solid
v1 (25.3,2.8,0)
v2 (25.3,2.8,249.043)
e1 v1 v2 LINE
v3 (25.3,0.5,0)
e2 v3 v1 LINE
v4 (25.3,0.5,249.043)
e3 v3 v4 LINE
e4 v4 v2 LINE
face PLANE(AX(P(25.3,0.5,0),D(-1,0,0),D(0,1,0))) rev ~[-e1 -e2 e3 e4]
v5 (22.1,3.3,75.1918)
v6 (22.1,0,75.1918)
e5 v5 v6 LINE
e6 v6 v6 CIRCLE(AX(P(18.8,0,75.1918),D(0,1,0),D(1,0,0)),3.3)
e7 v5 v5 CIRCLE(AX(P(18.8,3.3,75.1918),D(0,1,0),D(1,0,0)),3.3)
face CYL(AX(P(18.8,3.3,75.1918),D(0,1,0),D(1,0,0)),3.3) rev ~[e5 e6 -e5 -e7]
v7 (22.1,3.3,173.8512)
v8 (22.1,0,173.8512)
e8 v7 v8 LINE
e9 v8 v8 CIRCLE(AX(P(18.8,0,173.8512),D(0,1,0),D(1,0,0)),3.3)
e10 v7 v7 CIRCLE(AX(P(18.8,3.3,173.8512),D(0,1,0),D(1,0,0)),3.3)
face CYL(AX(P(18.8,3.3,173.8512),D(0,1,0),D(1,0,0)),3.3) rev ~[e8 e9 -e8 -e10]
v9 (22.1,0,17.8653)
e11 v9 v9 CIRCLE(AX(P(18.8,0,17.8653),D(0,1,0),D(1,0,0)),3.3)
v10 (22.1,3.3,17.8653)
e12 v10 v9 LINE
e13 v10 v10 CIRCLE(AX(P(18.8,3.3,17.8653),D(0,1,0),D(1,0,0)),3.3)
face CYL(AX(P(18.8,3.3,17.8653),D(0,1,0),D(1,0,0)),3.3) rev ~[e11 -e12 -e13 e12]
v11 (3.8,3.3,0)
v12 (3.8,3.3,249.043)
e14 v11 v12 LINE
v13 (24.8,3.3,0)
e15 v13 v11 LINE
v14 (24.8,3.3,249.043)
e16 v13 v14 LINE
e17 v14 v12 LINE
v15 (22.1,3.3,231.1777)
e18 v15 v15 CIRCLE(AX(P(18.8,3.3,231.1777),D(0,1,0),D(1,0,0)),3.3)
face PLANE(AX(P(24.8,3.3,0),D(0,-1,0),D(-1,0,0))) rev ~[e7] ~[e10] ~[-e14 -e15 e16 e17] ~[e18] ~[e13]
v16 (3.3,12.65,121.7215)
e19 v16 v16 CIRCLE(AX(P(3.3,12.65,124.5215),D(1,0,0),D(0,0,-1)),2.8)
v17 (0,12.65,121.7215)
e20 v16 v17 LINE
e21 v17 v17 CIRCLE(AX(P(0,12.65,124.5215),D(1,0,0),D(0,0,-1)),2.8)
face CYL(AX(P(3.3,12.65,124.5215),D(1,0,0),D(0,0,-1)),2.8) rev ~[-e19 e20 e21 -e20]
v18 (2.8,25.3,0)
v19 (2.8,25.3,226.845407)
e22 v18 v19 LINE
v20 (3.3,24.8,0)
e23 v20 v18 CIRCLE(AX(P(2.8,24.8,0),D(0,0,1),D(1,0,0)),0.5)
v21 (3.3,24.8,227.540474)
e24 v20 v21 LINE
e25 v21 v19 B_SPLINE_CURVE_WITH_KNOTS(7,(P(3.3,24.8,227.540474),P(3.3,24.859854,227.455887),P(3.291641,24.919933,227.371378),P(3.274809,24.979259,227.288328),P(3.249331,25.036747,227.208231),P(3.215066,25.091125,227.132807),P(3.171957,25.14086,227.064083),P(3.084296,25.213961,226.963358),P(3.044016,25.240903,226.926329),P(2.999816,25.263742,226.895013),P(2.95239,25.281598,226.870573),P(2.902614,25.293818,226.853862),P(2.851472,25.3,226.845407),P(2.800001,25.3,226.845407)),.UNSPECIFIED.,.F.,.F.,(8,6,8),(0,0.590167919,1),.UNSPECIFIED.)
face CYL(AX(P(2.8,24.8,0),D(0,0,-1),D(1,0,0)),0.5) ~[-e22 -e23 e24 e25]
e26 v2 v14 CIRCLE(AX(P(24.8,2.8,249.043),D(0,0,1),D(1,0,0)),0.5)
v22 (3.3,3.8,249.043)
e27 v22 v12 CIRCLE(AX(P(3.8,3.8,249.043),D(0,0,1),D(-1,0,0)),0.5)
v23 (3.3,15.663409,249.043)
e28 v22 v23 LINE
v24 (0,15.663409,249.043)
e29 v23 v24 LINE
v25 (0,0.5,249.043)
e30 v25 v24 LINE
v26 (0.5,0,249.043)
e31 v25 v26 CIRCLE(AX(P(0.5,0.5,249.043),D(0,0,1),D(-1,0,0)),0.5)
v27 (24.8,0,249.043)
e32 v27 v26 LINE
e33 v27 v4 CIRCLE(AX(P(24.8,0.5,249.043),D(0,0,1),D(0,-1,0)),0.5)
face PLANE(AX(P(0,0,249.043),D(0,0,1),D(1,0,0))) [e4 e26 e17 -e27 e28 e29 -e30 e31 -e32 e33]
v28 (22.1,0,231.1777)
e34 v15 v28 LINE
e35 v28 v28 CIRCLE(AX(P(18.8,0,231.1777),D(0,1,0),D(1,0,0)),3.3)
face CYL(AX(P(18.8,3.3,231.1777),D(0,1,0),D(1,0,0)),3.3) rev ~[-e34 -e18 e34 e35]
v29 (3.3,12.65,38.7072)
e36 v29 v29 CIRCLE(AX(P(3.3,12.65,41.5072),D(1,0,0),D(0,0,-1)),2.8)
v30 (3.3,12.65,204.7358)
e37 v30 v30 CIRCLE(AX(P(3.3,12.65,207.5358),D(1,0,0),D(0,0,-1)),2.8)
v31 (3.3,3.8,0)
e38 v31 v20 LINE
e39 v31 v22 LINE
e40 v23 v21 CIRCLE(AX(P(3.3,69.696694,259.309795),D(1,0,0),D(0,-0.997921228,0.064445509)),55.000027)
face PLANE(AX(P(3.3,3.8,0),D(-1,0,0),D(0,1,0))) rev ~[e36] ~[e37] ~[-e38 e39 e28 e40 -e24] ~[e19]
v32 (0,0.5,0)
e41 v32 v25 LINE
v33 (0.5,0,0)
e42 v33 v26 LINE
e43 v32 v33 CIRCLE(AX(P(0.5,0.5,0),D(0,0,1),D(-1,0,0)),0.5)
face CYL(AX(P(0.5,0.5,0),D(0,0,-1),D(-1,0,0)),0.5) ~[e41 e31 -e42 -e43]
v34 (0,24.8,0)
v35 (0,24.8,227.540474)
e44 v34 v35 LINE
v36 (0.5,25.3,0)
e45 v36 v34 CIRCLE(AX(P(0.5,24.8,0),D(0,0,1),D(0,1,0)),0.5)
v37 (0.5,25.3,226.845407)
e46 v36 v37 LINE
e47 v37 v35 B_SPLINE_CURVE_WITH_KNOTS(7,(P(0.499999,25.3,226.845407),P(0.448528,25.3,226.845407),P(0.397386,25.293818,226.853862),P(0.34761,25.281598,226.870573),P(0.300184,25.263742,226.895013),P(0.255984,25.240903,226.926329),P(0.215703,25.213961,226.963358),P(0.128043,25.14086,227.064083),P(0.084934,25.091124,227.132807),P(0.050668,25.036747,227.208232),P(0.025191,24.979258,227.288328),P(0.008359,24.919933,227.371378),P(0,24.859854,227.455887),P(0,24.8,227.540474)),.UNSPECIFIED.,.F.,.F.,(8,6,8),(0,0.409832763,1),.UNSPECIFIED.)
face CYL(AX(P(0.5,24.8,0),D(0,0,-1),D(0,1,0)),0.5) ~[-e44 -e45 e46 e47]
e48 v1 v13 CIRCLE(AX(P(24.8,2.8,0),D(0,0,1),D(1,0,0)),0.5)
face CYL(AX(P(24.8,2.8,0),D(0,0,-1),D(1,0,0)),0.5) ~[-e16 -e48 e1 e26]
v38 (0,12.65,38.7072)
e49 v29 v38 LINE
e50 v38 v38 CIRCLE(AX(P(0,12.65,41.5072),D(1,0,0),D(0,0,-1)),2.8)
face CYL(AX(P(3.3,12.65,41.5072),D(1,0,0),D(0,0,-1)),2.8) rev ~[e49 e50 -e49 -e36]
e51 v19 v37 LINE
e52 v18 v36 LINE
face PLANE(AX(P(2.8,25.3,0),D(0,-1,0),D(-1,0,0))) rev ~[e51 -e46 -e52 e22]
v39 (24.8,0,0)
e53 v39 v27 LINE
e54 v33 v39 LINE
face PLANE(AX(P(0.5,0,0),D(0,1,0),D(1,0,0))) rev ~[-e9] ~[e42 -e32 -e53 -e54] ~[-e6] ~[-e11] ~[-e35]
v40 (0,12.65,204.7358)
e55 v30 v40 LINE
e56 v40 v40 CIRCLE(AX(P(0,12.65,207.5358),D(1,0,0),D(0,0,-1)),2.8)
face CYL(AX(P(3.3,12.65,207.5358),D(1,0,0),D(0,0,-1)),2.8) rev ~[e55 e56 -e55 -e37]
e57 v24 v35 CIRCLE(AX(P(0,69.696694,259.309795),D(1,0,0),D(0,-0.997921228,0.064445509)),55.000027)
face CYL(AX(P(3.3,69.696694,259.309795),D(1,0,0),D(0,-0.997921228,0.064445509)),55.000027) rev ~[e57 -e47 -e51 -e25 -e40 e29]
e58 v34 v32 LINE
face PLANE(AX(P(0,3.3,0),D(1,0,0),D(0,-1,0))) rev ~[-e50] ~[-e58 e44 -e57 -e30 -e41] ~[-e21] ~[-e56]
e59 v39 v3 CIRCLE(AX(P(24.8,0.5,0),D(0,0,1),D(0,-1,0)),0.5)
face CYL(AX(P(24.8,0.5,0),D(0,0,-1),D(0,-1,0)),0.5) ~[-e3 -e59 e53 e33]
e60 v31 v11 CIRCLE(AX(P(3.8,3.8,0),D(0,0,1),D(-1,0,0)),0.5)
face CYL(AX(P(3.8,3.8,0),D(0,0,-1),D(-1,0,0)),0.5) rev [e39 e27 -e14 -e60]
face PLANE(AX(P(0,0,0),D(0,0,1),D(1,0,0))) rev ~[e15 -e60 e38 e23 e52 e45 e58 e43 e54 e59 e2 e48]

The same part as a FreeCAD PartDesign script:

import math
import FreeCAD as App
import Part
import Sketcher

doc = App.newDocument("Part")
params = doc.addObject("Spreadsheet::Sheet", "Params")
for row, (alias, value) in enumerate([
    ("sketch1_radius", "0.5 mm"),
    ("pad1_length", "249.043 mm"),
    ("sketch2_diameter", "6.6 mm"),
    ("sketch3_diameter", "5.6 mm"),
    ("sketch3_radius", "55 mm"),
    ("pocket2_length", "10 mm"),
], start=1):
    params.set(f"A{row}", alias)
    params.set(f"B{row}", "=" + value)
    params.setAlias(f"B{row}", alias)

body = doc.addObject("PartDesign::Body", "Body")

sketch1 = doc.addObject("Sketcher::SketchObject", "Sketch")
body.addObject(sketch1)
sketch1.AttachmentSupport = (doc.XY_Plane, [""])
sketch1.MapMode = "FlatFace"
sketch1.addGeometry([
    Part.ArcOfCircle(Part.Circle(App.Vector(0.5, 0.5, 0), App.Vector(0, 0, 1), 0.5), math.radians(180), math.radians(270)),
    Part.LineSegment(App.Vector(0.5, 0, 0), App.Vector(24.8, 0, 0)),
    Part.ArcOfCircle(Part.Circle(App.Vector(24.8, 0.5, 0), App.Vector(0, 0, 1), 0.5), math.radians(-90), math.radians(0)),
    Part.LineSegment(App.Vector(25.3, 0.5, 0), App.Vector(25.3, 2.8, 0)),
    Part.ArcOfCircle(Part.Circle(App.Vector(24.8, 2.8, 0), App.Vector(0, 0, 1), 0.5), math.radians(0), math.radians(90)),
    Part.LineSegment(App.Vector(24.8, 3.3, 0), App.Vector(3.8, 3.3, 0)),
    Part.ArcOfCircle(Part.Circle(App.Vector(3.8, 3.8, 0), App.Vector(0, 0, 1), 0.5), math.radians(180), math.radians(270)),
    Part.LineSegment(App.Vector(3.3, 3.8, 0), App.Vector(3.3, 24.8, 0)),
    Part.ArcOfCircle(Part.Circle(App.Vector(2.8, 24.8, 0), App.Vector(0, 0, 1), 0.5), math.radians(0), math.radians(90)),
    Part.LineSegment(App.Vector(2.8, 25.3, 0), App.Vector(0.5, 25.3, 0)),
    Part.ArcOfCircle(Part.Circle(App.Vector(0.5, 24.8, 0), App.Vector(0, 0, 1), 0.5), math.radians(90), math.radians(180)),
    Part.LineSegment(App.Vector(0, 24.8, 0), App.Vector(0, 0.5, 0)),
], False)
sketch1.addConstraint([
    Sketcher.Constraint("Tangent", 0, 2, 1, 1),
    Sketcher.Constraint("Tangent", 1, 2, 2, 1),
    Sketcher.Constraint("Tangent", 2, 2, 3, 1),
    Sketcher.Constraint("Tangent", 3, 2, 4, 1),
    Sketcher.Constraint("Tangent", 4, 2, 5, 1),
    Sketcher.Constraint("Tangent", 5, 2, 6, 2),
    Sketcher.Constraint("Tangent", 6, 1, 7, 1),
    Sketcher.Constraint("Tangent", 7, 2, 8, 1),
    Sketcher.Constraint("Tangent", 8, 2, 9, 1),
    Sketcher.Constraint("Tangent", 9, 2, 10, 1),
    Sketcher.Constraint("Tangent", 10, 2, 11, 1),
    Sketcher.Constraint("Tangent", 11, 2, 0, 1),
    Sketcher.Constraint("Horizontal", 1),
    Sketcher.Constraint("Vertical", 3),
    Sketcher.Constraint("Horizontal", 5),
    Sketcher.Constraint("Vertical", 7),
    Sketcher.Constraint("Horizontal", 9),
    Sketcher.Constraint("Vertical", 11),
    Sketcher.Constraint("Equal", 0, 2),
    Sketcher.Constraint("Equal", 2, 4),
    Sketcher.Constraint("Equal", 4, 6),
    Sketcher.Constraint("Equal", 6, 8),
    Sketcher.Constraint("Equal", 8, 10),
    Sketcher.Constraint("PointOnObject", 0, 2, -1),
    Sketcher.Constraint("PointOnObject", 10, 2, -2),
    Sketcher.Constraint("Equal", 9, 3),
    Sketcher.Constraint("Equal", 5, 7),
    Sketcher.Constraint("Radius", 0, 0.5),
    Sketcher.Constraint("DistanceX", -1, 1, 2, 2, 25.3),
    Sketcher.Constraint("DistanceY", -1, 1, 4, 2, 3.3),
])
sketch1.setExpression("Constraints[27]", "Params.sketch1_radius")
pad1 = doc.addObject("PartDesign::Pad", "Pad")
body.addObject(pad1)
pad1.Profile = sketch1
pad1.setExpression("Length", "Params.pad1_length")

sketch2 = doc.addObject("Sketcher::SketchObject", "Sketch001")
body.addObject(sketch2)
sketch2.AttachmentSupport = (doc.XZ_Plane, [""])
sketch2.MapMode = "FlatFace"
sketch2.AttachmentOffset = App.Placement(App.Vector(0, 0, -3.3), App.Rotation())
sketch2.addGeometry([
    Part.Circle(App.Vector(18.8, 231.1777, 0), App.Vector(0, 0, 1), 3.3),
    Part.Circle(App.Vector(18.8, 17.8653, 0), App.Vector(0, 0, 1), 3.3),
    Part.Circle(App.Vector(18.8, 75.1918, 0), App.Vector(0, 0, 1), 3.3),
    Part.Circle(App.Vector(18.8, 173.8512, 0), App.Vector(0, 0, 1), 3.3),
], False)
sketch2.addConstraint([
    Sketcher.Constraint("Equal", 0, 1),
    Sketcher.Constraint("Equal", 1, 2),
    Sketcher.Constraint("Equal", 2, 3),
    Sketcher.Constraint("Vertical", 0, 3, 1, 3),
    Sketcher.Constraint("Vertical", 1, 3, 2, 3),
    Sketcher.Constraint("Vertical", 2, 3, 3, 3),
    Sketcher.Constraint("Diameter", 0, 6.6),
    Sketcher.Constraint("DistanceX", -1, 1, 0, 3, 18.8),
    Sketcher.Constraint("DistanceY", 1, 3, 0, 3, 213.3124),
    Sketcher.Constraint("DistanceY", 2, 3, 0, 3, 155.986),
    Sketcher.Constraint("DistanceY", 1, 3, 3, 3, 155.986),
    Sketcher.Constraint("DistanceY", -1, 1, 0, 3, 231.1777),
])
sketch2.setExpression("Constraints[6]", "Params.sketch2_diameter")
pocket1 = doc.addObject("PartDesign::Pocket", "Pocket")
body.addObject(pocket1)
pocket1.Profile = sketch2
pocket1.Type = "ThroughAll"
pocket1.Reversed = True

sketch3 = doc.addObject("Sketcher::SketchObject", "Sketch002")
body.addObject(sketch3)
sketch3.AttachmentSupport = (doc.YZ_Plane, [""])
sketch3.MapMode = "FlatFace"
sketch3.AttachmentOffset = App.Placement(App.Vector(0, 0, 3.3), App.Rotation())
sketch3.addGeometry([
    Part.Circle(App.Vector(12.65, 124.5215, 0), App.Vector(0, 0, 1), 2.8),
    Part.Circle(App.Vector(12.65, 207.5358, 0), App.Vector(0, 0, 1), 2.8),
    Part.Circle(App.Vector(12.65, 41.5072, 0), App.Vector(0, 0, 1), 2.8),
    Part.LineSegment(App.Vector(25.3, 249.043, 0), App.Vector(15.663409, 249.043, 0)),
    Part.ArcOfCircle(Part.Circle(App.Vector(69.6967, 259.3098, 0), App.Vector(0, 0, 1), 55.000032), math.radians(-169.241547), math.radians(-143.824446)),
    Part.LineSegment(App.Vector(25.3, 226.845407, 0), App.Vector(25.3, 249.043, 0)),
], False)
sketch3.addConstraint([
    Sketcher.Constraint("Coincident", 3, 2, 4, 1),
    Sketcher.Constraint("Coincident", 4, 2, 5, 1),
    Sketcher.Constraint("Coincident", 5, 2, 3, 1),
    Sketcher.Constraint("Horizontal", 3),
    Sketcher.Constraint("Vertical", 5),
    Sketcher.Constraint("Equal", 0, 1),
    Sketcher.Constraint("Equal", 1, 2),
    Sketcher.Constraint("Vertical", 0, 3, 1, 3),
    Sketcher.Constraint("Vertical", 1, 3, 2, 3),
    Sketcher.Constraint("Diameter", 0, 5.6),
    Sketcher.Constraint("Radius", 4, 55.0),
    Sketcher.Constraint("DistanceY", -1, 1, 3, 2, 249.043),
    Sketcher.Constraint("DistanceY", -1, 1, 0, 3, 124.5215),
    Sketcher.Constraint("DistanceY", -1, 1, 2, 3, 41.5072),
    Sketcher.Constraint("DistanceX", -1, 1, 4, 2, 25.3),
    Sketcher.Constraint("DistanceY", 1, 3, 3, 2, 41.5072),
    Sketcher.Constraint("DistanceX", -1, 1, 0, 3, 12.65),
    Sketcher.Constraint("DistanceX", 3, 2, 3, 1, 9.6366),
    Sketcher.Constraint("DistanceY", 5, 1, 5, 2, 22.1976),
])
sketch3.setExpression("Constraints[9]", "Params.sketch3_diameter")
sketch3.setExpression("Constraints[10]", "Params.sketch3_radius")
pocket2 = doc.addObject("PartDesign::Pocket", "Pocket001")
body.addObject(pocket2)
pocket2.Profile = sketch3
pocket2.setExpression("Length", "Params.pocket2_length")

doc.recompute()
